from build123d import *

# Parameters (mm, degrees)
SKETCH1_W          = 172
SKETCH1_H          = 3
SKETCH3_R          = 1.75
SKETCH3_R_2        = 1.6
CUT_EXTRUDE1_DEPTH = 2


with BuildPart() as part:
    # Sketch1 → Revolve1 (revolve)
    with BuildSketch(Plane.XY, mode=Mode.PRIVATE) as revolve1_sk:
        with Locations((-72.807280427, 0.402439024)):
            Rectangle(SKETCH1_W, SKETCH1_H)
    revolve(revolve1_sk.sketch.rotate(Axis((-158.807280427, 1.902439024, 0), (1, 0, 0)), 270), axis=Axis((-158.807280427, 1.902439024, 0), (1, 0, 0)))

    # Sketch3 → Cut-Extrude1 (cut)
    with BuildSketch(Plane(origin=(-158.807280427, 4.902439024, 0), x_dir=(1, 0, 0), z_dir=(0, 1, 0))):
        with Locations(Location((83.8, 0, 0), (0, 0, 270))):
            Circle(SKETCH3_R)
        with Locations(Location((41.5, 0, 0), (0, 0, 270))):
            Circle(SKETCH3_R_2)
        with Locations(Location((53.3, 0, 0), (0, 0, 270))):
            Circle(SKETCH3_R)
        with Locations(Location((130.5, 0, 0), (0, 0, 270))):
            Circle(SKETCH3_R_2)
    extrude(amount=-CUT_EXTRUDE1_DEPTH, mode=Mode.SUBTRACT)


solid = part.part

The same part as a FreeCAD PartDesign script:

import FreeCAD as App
import Part
import Sketcher

V = App.Vector
Q = App.Units.Quantity

doc = App.newDocument("Part")
body = doc.addObject("PartDesign::Body", "Body")

sketch1 = body.newObject("Sketcher::SketchObject", "Sketch")
sketch1.AttachmentSupport = (doc.getObject("XY_Plane"), [""])
sketch1.MapMode = "FlatFace"
sketch1.addGeometry(Part.LineSegment(V(-158.80728, 1.902439, 0), V(-158.80728, -1.097561, 0)), False)
sketch1.addGeometry(Part.LineSegment(V(-158.80728, -1.097561, 0), V(13.19272, -1.097561, 0)), False)
sketch1.addGeometry(Part.LineSegment(V(13.19272, -1.097561, 0), V(13.19272, 1.902439, 0)), False)
sketch1.addGeometry(Part.LineSegment(V(13.19272, 1.902439, 0), V(-158.80728, 1.902439, 0)), False)
sketch1.addGeometry(Part.LineSegment(V(-158.80728, 1.902439, 0), V(13.19272, 1.902439, 0)), True)
sketch1.addConstraint(Sketcher.Constraint("Coincident", 0, 2, 1, 1))
sketch1.addConstraint(Sketcher.Constraint("Coincident", 1, 2, 2, 1))
sketch1.addConstraint(Sketcher.Constraint("Coincident", 2, 2, 3, 1))
sketch1.addConstraint(Sketcher.Constraint("Coincident", 3, 2, 0, 1))
sketch1.addConstraint(Sketcher.Constraint("Vertical", 0))
sketch1.addConstraint(Sketcher.Constraint("Horizontal", 1))
sketch1.addConstraint(Sketcher.Constraint("Vertical", 2))
sketch1.addConstraint(Sketcher.Constraint("Horizontal", 3))
sketch1.addConstraint(Sketcher.Constraint("Horizontal", 4))
sketch1.addConstraint(Sketcher.Constraint("Coincident", 4, 1, 3, 2))
sketch1.addConstraint(Sketcher.Constraint("Vertical", 1, 2, 4, 2))
sketch1.addConstraint(Sketcher.Constraint("DistanceX", 1, 1, 1, 2, Q("172 mm")))
sketch1.addConstraint(Sketcher.Constraint("DistanceY", 0, 2, 0, 1, Q("3 mm")))
sketch1.addConstraint(Sketcher.Constraint("DistanceX", 0, 2, -1, 1, Q("158.80728 mm")))
sketch1.addConstraint(Sketcher.Constraint("DistanceY", 0, 2, -1, 1, Q("1.097561 mm")))
revolution = body.newObject("PartDesign::Revolution", "Revolution")
revolution.Profile = sketch1
revolution.ReferenceAxis = (sketch1, ["Axis0"])
revolution.Angle = 360

sketch2 = body.newObject("Sketcher::SketchObject", "Sketch001")
sketch2.AttachmentSupport = (doc.getObject("XZ_Plane"), [""])
sketch2.MapMode = "FlatFace"
sketch2.AttachmentOffset = App.Placement(V(0, 0, -4.902439), App.Rotation())
sketch2.addGeometry(Part.Circle(V(-75.00728, 0, 0), V(0, 0, 1), 1.75), False)
sketch2.addGeometry(Part.Circle(V(-117.30728, 0, 0), V(0, 0, 1), 1.6), False)
sketch2.addGeometry(Part.Circle(V(-105.50728, 0, 0), V(0, 0, 1), 1.75), False)
sketch2.addGeometry(Part.Circle(V(-28.30728, 0, 0), V(0, 0, 1), 1.6), False)
sketch2.addConstraint(Sketcher.Constraint("Equal", 0, 2))
sketch2.addConstraint(Sketcher.Constraint("Equal", 1, 3))
sketch2.addConstraint(Sketcher.Constraint("PointOnObject", 0, 3, -1))
sketch2.addConstraint(Sketcher.Constraint("PointOnObject", 1, 3, -1))
sketch2.addConstraint(Sketcher.Constraint("PointOnObject", 2, 3, -1))
sketch2.addConstraint(Sketcher.Constraint("PointOnObject", 3, 3, -1))
sketch2.addConstraint(Sketcher.Constraint("Diameter", 0, Q("3.5 mm")))
sketch2.addConstraint(Sketcher.Constraint("Diameter", 1, Q("3.2 mm")))
sketch2.addConstraint(Sketcher.Constraint("DistanceX", 1, 3, 3, 3, Q("89 mm")))
sketch2.addConstraint(Sketcher.Constraint("DistanceX", 1, 3, 0, 3, Q("42.3 mm")))
sketch2.addConstraint(Sketcher.Constraint("DistanceX", 1, 3, 2, 3, Q("11.8 mm")))
sketch2.addConstraint(Sketcher.Constraint("DistanceX", 0, 3, -1, 1, Q("75.00728 mm")))
pocket1 = body.newObject("PartDesign::Pocket", "Pocket")
pocket1.Profile = sketch2
pocket1.Length = 2
pocket1.Reversed = True

doc.recompute()
